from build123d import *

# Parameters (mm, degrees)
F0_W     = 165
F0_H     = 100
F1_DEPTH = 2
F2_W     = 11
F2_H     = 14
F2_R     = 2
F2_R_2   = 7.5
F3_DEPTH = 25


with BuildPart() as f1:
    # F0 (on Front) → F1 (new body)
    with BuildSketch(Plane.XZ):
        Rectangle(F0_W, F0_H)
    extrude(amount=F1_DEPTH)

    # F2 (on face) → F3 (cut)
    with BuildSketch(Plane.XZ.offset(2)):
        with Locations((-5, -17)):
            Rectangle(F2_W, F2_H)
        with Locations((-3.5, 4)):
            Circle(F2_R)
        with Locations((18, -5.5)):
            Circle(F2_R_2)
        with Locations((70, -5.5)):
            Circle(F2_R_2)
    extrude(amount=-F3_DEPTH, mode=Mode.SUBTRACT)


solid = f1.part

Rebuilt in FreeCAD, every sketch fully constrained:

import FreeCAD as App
import Part
import Sketcher

V = App.Vector


def add_polygon(sketch, points):
    """Adds a closed chain of lines whose ends are joined by coincident constraints."""
    first, n = sketch.GeometryCount, len(points)
    for a, b in zip(points, points[1:] + points[:1]):
        sketch.addGeometry(Part.LineSegment(App.Vector(*a, 0), App.Vector(*b, 0)), False)
    for i in range(n):
        sketch.addConstraint(Sketcher.Constraint("Coincident", first + i, 2, first + (i + 1) % n, 1))

doc = App.newDocument("Part")
params = doc.addObject("Spreadsheet::Sheet", "Params")
for row, (alias, value) in enumerate([
    ("sketch1_width", "165 mm"),
    ("sketch1_height", "100 mm"),
    ("pad1_length", "2 mm"),
    ("sketch2_diameter", "4 mm"),
    ("sketch2_diameter2", "15 mm"),
    ("sketch2_width", "11 mm"),
    ("sketch2_height", "14 mm"),
    ("pocket1_length", "25 mm"),
], start=1):
    params.set(f"A{row}", alias)
    params.set(f"B{row}", "=" + value)
    params.setAlias(f"B{row}", alias)

body = doc.addObject("PartDesign::Body", "Body")

sketch1 = body.newObject("Sketcher::SketchObject", "Sketch")
sketch1.AttachmentSupport = (doc.getObject("XZ_Plane"), [""])
sketch1.MapMode = "FlatFace"
add_polygon(sketch1, [(-82, 50), (-82, -50), (82, -50), (82, 50)])
sketch1.addConstraint(Sketcher.Constraint("Vertical", 0))
sketch1.addConstraint(Sketcher.Constraint("Horizontal", 1))
sketch1.addConstraint(Sketcher.Constraint("Vertical", 2))
sketch1.addConstraint(Sketcher.Constraint("Horizontal", 3))
sketch1.addConstraint(Sketcher.Constraint("Symmetric", 0, 2, 2, 2, -1, 1))
sketch1.addConstraint(Sketcher.Constraint("DistanceX", 1, 1, 1, 2, 165.0))
sketch1.addConstraint(Sketcher.Constraint("DistanceY", 0, 2, 0, 1, 100.0))
sketch1.setExpression("Constraints[9]", "Params.sketch1_width")
sketch1.setExpression("Constraints[10]", "Params.sketch1_height")
pad1 = body.newObject("PartDesign::Pad", "Pad")
pad1.Profile = sketch1
pad1.setExpression("Length", "Params.pad1_length")

sketch2 = body.newObject("Sketcher::SketchObject", "Sketch001")
sketch2.AttachmentSupport = (doc.getObject("XZ_Plane"), [""])
sketch2.MapMode = "FlatFace"
sketch2.AttachmentOffset = App.Placement(V(0, 0, 2), App.Rotation())
add_polygon(sketch2, [(-10.5, -10), (-10.5, -24), (0.5, -24), (0.5, -10)])
sketch2.addGeometry(Part.Circle(V(-3.5, 4, 0), V(0, 0, 1), 2), False)
sketch2.addGeometry(Part.Circle(V(18, -5.5, 0), V(0, 0, 1), 7.5), False)
sketch2.addGeometry(Part.Circle(V(70, -5.5, 0), V(0, 0, 1), 7.5), False)
sketch2.addConstraint(Sketcher.Constraint("Vertical", 0))
sketch2.addConstraint(Sketcher.Constraint("Horizontal", 1))
sketch2.addConstraint(Sketcher.Constraint("Vertical", 2))
sketch2.addConstraint(Sketcher.Constraint("Horizontal", 3))
sketch2.addConstraint(Sketcher.Constraint("Equal", 5, 6))
sketch2.addConstraint(Sketcher.Constraint("Horizontal", 5, 3, 6, 3))
sketch2.addConstraint(Sketcher.Constraint("Diameter", 4, 4.0))
sketch2.addConstraint(Sketcher.Constraint("Diameter", 5, 15.0))
sketch2.addConstraint(Sketcher.Constraint("DistanceX", 1, 1, 1, 2, 11.0))
sketch2.addConstraint(Sketcher.Constraint("DistanceY", 0, 2, 0, 1, 14.0))
sketch2.addConstraint(Sketcher.Constraint("DistanceY", -1, 1, 4, 3, 4.0))
sketch2.addConstraint(Sketcher.Constraint("DistanceX", -1, 1, 5, 3, 18.0))
sketch2.addConstraint(Sketcher.Constraint("DistanceX", -1, 1, 6, 3, 70.0))
sketch2.addConstraint(Sketcher.Constraint("DistanceY", 0, 2, -1, 1, 24.0))
sketch2.addConstraint(Sketcher.Constraint("DistanceX", 0, 2, 4, 3, 7.0))
sketch2.addConstraint(Sketcher.Constraint("DistanceX", 4, 3, -1, 1, 3.5))
sketch2.addConstraint(Sketcher.Constraint("DistanceY", 5, 3, -1, 1, 5.5))
sketch2.setExpression("Constraints[10]", "Params.sketch2_diameter")
sketch2.setExpression("Constraints[11]", "Params.sketch2_diameter2")
sketch2.setExpression("Constraints[12]", "Params.sketch2_width")
sketch2.setExpression("Constraints[13]", "Params.sketch2_height")
pocket1 = body.newObject("PartDesign::Pocket", "Pocket")
pocket1.Profile = sketch2
pocket1.setExpression("Length", "Params.pocket1_length")

doc.recompute()
